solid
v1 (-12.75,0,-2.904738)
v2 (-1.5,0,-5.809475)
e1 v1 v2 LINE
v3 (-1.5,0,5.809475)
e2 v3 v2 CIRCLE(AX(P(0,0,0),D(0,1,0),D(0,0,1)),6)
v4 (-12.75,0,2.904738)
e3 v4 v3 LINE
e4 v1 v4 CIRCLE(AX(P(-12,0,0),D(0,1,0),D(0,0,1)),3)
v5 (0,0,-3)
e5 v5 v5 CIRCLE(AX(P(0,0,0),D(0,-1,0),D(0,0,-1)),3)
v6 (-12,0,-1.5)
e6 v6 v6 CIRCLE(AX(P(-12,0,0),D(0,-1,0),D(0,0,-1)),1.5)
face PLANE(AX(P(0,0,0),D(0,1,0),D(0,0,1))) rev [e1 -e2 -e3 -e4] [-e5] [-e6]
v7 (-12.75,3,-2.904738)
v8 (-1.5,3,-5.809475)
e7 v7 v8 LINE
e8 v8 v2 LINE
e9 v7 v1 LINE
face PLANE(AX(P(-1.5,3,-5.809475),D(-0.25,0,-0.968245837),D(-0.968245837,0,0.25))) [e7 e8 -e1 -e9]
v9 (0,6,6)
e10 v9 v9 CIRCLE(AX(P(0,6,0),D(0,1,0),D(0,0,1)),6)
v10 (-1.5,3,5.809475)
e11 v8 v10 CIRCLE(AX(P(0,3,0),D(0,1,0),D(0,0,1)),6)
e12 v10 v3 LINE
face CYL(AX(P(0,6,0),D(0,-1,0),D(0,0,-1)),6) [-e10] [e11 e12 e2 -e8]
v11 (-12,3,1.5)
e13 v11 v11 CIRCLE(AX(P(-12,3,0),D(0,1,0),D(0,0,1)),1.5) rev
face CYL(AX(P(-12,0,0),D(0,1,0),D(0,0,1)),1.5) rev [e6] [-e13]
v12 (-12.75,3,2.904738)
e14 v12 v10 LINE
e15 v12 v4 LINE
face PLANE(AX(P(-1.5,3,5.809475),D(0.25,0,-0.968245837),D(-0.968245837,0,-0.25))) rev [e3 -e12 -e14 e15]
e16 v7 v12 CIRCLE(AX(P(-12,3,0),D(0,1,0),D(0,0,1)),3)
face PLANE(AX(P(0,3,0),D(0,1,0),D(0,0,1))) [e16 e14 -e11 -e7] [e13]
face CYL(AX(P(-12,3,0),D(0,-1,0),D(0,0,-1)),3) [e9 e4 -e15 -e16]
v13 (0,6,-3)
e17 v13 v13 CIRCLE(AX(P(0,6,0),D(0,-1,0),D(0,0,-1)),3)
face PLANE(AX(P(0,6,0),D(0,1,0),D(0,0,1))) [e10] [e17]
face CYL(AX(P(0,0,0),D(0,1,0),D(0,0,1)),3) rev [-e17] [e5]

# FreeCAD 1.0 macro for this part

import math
import FreeCAD as App
import Part
import Sketcher

V = App.Vector
Q = App.Units.Quantity

doc = App.newDocument("Part")
body = doc.addObject("PartDesign::Body", "Body")

sketch1 = body.newObject("Sketcher::SketchObject", "Sketch")
sketch1.AttachmentSupport = (doc.getObject("XZ_Plane"), [""])
sketch1.MapMode = "FlatFace"
sketch1.addGeometry(Part.Circle(V(0, 0, 0), V(0, 0, 1), 6), False)
sketch1.addConstraint(Sketcher.Constraint("Coincident", 0, 3, -1, 1))
sketch1.addConstraint(Sketcher.Constraint("Diameter", 0, Q("12 mm")))
pad1 = body.newObject("PartDesign::Pad", "Pad")
pad1.Profile = sketch1
pad1.Length = 6
pad1.Reversed = True

sketch2 = body.newObject("Sketcher::SketchObject", "Sketch001")
sketch2.AttachmentSupport = (doc.getObject("XZ_Plane"), [""])
sketch2.MapMode = "FlatFace"
sketch2.addGeometry(Part.LineSegment(V(-1.5, -5.809475, 0), V(-12.75, -2.904738, 0)), False)
sketch2.addGeometry(Part.ArcOfCircle(Part.Circle(V(-12, 0, 0), V(0, 0, 1), 3), math.radians(104.477512), math.radians(255.522488)), False)
sketch2.addGeometry(Part.LineSegment(V(-12.75, 2.904738, 0), V(-1.5, 5.809475, 0)), False)
sketch2.addGeometry(Part.ArcOfCircle(Part.Circle(V(0, 0, 0), V(0, 0, 1), 6), math.radians(104.477512), math.radians(255.522488)), False)
sketch2.addConstraint(Sketcher.Constraint("Tangent", 0, 2, 1, 2))
sketch2.addConstraint(Sketcher.Constraint("Tangent", 1, 1, 2, 1))
sketch2.addConstraint(Sketcher.Constraint("Tangent", 2, 2, 3, 1))
sketch2.addConstraint(Sketcher.Constraint("Tangent", 3, 2, 0, 1))
sketch2.addConstraint(Sketcher.Constraint("Coincident", 3, 3, -1, 1))
sketch2.addConstraint(Sketcher.Constraint("PointOnObject", 1, 3, -1))
sketch2.addConstraint(Sketcher.Constraint("Radius", 1, Q("3 mm")))
sketch2.addConstraint(Sketcher.Constraint("Radius", 3, Q("6 mm")))
sketch2.addConstraint(Sketcher.Constraint("DistanceX", 1, 3, -1, 1, Q("12 mm")))
pad2 = body.newObject("PartDesign::Pad", "Pad001")
pad2.Profile = sketch2
pad2.Length = 3
pad2.Reversed = True

sketch3 = body.newObject("Sketcher::SketchObject", "Sketch002")
sketch3.AttachmentSupport = (doc.getObject("XZ_Plane"), [""])
sketch3.MapMode = "FlatFace"
sketch3.AttachmentOffset = App.Placement(V(0, 0, -6), App.Rotation())
sketch3.addGeometry(Part.Circle(V(0, 0, 0), V(0, 0, 1), 3), False)
sketch3.addGeometry(Part.Circle(V(-12, 0, 0), V(0, 0, 1), 1.5), False)
sketch3.addConstraint(Sketcher.Constraint("Coincident", 0, 3, -1, 1))
sketch3.addConstraint(Sketcher.Constraint("PointOnObject", 1, 3, -1))
sketch3.addConstraint(Sketcher.Constraint("Diameter", 0, Q("6 mm")))
sketch3.addConstraint(Sketcher.Constraint("Diameter", 1, Q("3 mm")))
sketch3.addConstraint(Sketcher.Constraint("DistanceX", 1, 3, -1, 1, Q("12 mm")))
pocket1 = body.newObject("PartDesign::Pocket", "Pocket")
pocket1.Profile = sketch3
pocket1.Type = "ThroughAll"
pocket1.Reversed = True

doc.recompute()
